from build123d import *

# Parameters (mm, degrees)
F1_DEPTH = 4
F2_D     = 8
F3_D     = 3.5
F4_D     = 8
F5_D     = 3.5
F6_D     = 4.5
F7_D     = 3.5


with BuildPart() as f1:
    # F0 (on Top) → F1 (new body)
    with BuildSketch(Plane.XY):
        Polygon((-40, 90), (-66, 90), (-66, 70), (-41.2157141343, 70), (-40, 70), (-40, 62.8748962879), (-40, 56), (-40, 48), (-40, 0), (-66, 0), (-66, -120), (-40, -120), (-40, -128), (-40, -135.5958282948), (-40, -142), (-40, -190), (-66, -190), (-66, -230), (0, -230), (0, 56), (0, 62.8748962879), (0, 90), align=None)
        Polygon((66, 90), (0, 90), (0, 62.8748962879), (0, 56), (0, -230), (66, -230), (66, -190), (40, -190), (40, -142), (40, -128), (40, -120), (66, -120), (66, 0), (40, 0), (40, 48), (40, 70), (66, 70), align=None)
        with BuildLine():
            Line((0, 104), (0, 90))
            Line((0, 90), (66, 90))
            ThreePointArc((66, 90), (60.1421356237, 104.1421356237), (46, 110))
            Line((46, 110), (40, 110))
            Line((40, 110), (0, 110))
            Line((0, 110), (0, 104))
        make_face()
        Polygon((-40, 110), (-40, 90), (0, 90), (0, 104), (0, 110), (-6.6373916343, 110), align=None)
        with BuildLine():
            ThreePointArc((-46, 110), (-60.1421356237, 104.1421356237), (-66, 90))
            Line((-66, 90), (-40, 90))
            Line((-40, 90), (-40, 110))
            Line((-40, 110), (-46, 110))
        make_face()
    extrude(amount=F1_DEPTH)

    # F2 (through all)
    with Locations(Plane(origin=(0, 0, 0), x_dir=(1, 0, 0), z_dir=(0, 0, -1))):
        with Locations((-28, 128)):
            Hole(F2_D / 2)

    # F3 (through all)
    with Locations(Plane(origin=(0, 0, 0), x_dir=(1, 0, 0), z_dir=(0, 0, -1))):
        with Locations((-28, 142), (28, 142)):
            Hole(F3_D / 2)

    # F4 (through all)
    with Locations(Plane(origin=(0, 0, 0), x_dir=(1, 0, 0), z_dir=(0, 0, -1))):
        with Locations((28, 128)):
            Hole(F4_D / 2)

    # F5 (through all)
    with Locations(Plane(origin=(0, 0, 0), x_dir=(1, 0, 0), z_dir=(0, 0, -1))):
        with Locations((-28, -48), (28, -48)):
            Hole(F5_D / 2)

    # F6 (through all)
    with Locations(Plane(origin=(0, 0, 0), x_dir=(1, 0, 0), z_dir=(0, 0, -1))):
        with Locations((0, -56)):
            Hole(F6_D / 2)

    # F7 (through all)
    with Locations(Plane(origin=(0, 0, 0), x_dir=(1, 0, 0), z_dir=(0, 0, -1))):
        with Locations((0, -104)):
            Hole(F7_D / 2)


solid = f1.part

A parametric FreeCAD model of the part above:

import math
import FreeCAD as App
import Part
import Sketcher
Q = App.Units.Quantity

doc = App.newDocument("Part")
params = doc.addObject("Spreadsheet::Sheet", "Params")
for row, (alias, value) in enumerate([
    ("sketch1_radius", "20 mm"),
    ("sketch1_width", "26 mm"),
    ("sketch1_width2", "132 mm"),
    ("sketch1_height", "20 mm"),
    ("sketch1_height2", "70 mm"),
    ("pad1_length", "4 mm"),
    ("sketch2_diameter", "8 mm"),
    ("hole_diameter", "8 mm"),
    ("sketch3_diameter", "3.5 mm"),
    ("hole2_diameter", "3.5 mm"),
    ("sketch4_diameter", "8 mm"),
    ("hole3_diameter", "8 mm"),
    ("sketch5_diameter", "3.5 mm"),
    ("hole4_diameter", "3.5 mm"),
    ("sketch6_diameter", "4.5 mm"),
    ("hole5_diameter", "4.5 mm"),
    ("sketch7_diameter", "3.5 mm"),
    ("hole6_diameter", "3.5 mm"),
], start=1):
    params.set(f"A{row}", alias)
    params.set(f"B{row}", "=" + value)
    params.setAlias(f"B{row}", alias)

body = doc.addObject("PartDesign::Body", "Body")

# Sketch on XY plane
sketch1 = body.newObject("Sketcher::SketchObject", "Sketch")
sketch1.AttachmentSupport = (doc.getObject("XY_Plane"), [""])
sketch1.MapMode = "FlatFace"
sketch1.addGeometry([
    Part.LineSegment(App.Vector(-66, 90, 0), App.Vector(-66, 70, 0)),  # 0
    Part.LineSegment(App.Vector(-66, 70, 0), App.Vector(-40, 70, 0)),  # 1
    Part.LineSegment(App.Vector(-40, 70, 0), App.Vector(-40, 0, 0)),  # 2
    Part.LineSegment(App.Vector(-40, 0, 0), App.Vector(-66, 0, 0)),  # 3
    Part.LineSegment(App.Vector(-66, 0, 0), App.Vector(-66, -120, 0)),  # 4
    Part.LineSegment(App.Vector(-66, -120, 0), App.Vector(-40, -120, 0)),  # 5
    Part.LineSegment(App.Vector(-40, -120, 0), App.Vector(-40, -190, 0)),  # 6
    Part.LineSegment(App.Vector(-40, -190, 0), App.Vector(-66, -190, 0)),  # 7
    Part.LineSegment(App.Vector(-66, -190, 0), App.Vector(-66, -230, 0)),  # 8
    Part.LineSegment(App.Vector(-66, -230, 0), App.Vector(66, -230, 0)),  # 9
    Part.LineSegment(App.Vector(66, -230, 0), App.Vector(66, -190, 0)),  # 10
    Part.LineSegment(App.Vector(66, -190, 0), App.Vector(40, -190, 0)),  # 11
    Part.LineSegment(App.Vector(40, -190, 0), App.Vector(40, -120, 0)),  # 12
    Part.LineSegment(App.Vector(40, -120, 0), App.Vector(66, -120, 0)),  # 13
    Part.LineSegment(App.Vector(66, -120, 0), App.Vector(66, 0, 0)),  # 14
    Part.LineSegment(App.Vector(66, 0, 0), App.Vector(40, 0, 0)),  # 15
    Part.LineSegment(App.Vector(40, 0, 0), App.Vector(40, 70, 0)),  # 16
    Part.LineSegment(App.Vector(40, 70, 0), App.Vector(66, 70, 0)),  # 17
    Part.LineSegment(App.Vector(66, 70, 0), App.Vector(66, 90, 0)),  # 18
    Part.ArcOfCircle(Part.Circle(App.Vector(46, 90, 0), App.Vector(0, 0, 1), 20), math.radians(0), math.radians(90)),  # 19
    Part.LineSegment(App.Vector(46, 110, 0), App.Vector(-46, 110, 0)),  # 20
    Part.ArcOfCircle(Part.Circle(App.Vector(-46, 90, 0), App.Vector(0, 0, 1), 20), math.radians(90), math.radians(180)),  # 21
], False)
sketch1.addConstraint([
    Sketcher.Constraint("Coincident", 0, 2, 1, 1),
    Sketcher.Constraint("Coincident", 1, 2, 2, 1),
    Sketcher.Constraint("Coincident", 2, 2, 3, 1),
    Sketcher.Constraint("Coincident", 3, 2, 4, 1),
    Sketcher.Constraint("Coincident", 4, 2, 5, 1),
    Sketcher.Constraint("Coincident", 5, 2, 6, 1),
    Sketcher.Constraint("Coincident", 6, 2, 7, 1),
    Sketcher.Constraint("Coincident", 7, 2, 8, 1),
    Sketcher.Constraint("Coincident", 8, 2, 9, 1),
    Sketcher.Constraint("Coincident", 9, 2, 10, 1),
    Sketcher.Constraint("Coincident", 10, 2, 11, 1),
    Sketcher.Constraint("Coincident", 11, 2, 12, 1),
    Sketcher.Constraint("Coincident", 12, 2, 13, 1),
    Sketcher.Constraint("Coincident", 13, 2, 14, 1),
    Sketcher.Constraint("Coincident", 14, 2, 15, 1),
    Sketcher.Constraint("Coincident", 15, 2, 16, 1),
    Sketcher.Constraint("Coincident", 16, 2, 17, 1),
    Sketcher.Constraint("Coincident", 17, 2, 18, 1),
    Sketcher.Constraint("Tangent", 18, 2, 19, 1),
    Sketcher.Constraint("Tangent", 19, 2, 20, 1),
    Sketcher.Constraint("Tangent", 20, 2, 21, 1),
    Sketcher.Constraint("Tangent", 21, 2, 0, 1),
    Sketcher.Constraint("Vertical", 0),
    Sketcher.Constraint("Horizontal", 1),
    Sketcher.Constraint("Vertical", 2),
    Sketcher.Constraint("Horizontal", 3),
    Sketcher.Constraint("Vertical", 4),
    Sketcher.Constraint("Horizontal", 5),
    Sketcher.Constraint("Vertical", 6),
    Sketcher.Constraint("Horizontal", 7),
    Sketcher.Constraint("Vertical", 8),
    Sketcher.Constraint("Horizontal", 9),
    Sketcher.Constraint("Vertical", 10),
    Sketcher.Constraint("Horizontal", 11),
    Sketcher.Constraint("Vertical", 12),
    Sketcher.Constraint("Horizontal", 13),
    Sketcher.Constraint("Vertical", 14),
    Sketcher.Constraint("Horizontal", 15),
    Sketcher.Constraint("Vertical", 16),
    Sketcher.Constraint("Horizontal", 17),
    Sketcher.Constraint("Vertical", 18),
    Sketcher.Constraint("Horizontal", 20),
    Sketcher.Constraint("Equal", 19, 21),
    Sketcher.Constraint("Symmetric", 3, 2, 14, 2, -1, 1),
    Sketcher.Constraint("Symmetric", 7, 2, 10, 2, -2),
    Sketcher.Constraint("Symmetric", 5, 2, 12, 2, -2),
    Sketcher.Constraint("Symmetric", 2, 2, 15, 2, -2),
    Sketcher.Constraint("Symmetric", 0, 2, 17, 2, -2),
    Sketcher.Constraint("Vertical", 0, 2, 3, 2),
    Sketcher.Constraint("Vertical", 2, 2, 5, 2),
    Sketcher.Constraint("Vertical", 4, 2, 7, 2),
    Sketcher.Constraint("Equal", 2, 6),
    Sketcher.Constraint("Radius", 19, Q("20 mm")),
    Sketcher.Constraint("DistanceX", 1, 1, 1, 2, Q("26 mm")),
    Sketcher.Constraint("DistanceX", 9, 1, 9, 2, Q("132 mm")),
    Sketcher.Constraint("DistanceY", 0, 2, 0, 1, Q("20 mm")),
    Sketcher.Constraint("DistanceY", 2, 2, 2, 1, Q("70 mm")),
    Sketcher.Constraint("DistanceY", 4, 2, 4, 1, Q("120 mm")),
    Sketcher.Constraint("DistanceY", 8, 2, 8, 1, Q("40 mm")),
])
sketch1.setExpression("Constraints[52]", "Params.sketch1_radius")
sketch1.setExpression("Constraints[53]", "Params.sketch1_width")
sketch1.setExpression("Constraints[54]", "Params.sketch1_width2")
sketch1.setExpression("Constraints[55]", "Params.sketch1_height")
sketch1.setExpression("Constraints[56]", "Params.sketch1_height2")
pad1 = body.newObject("PartDesign::Pad", "Pad")
pad1.Profile = sketch1
pad1.setExpression("Length", "Params.pad1_length")

# Sketch on XY plane
sketch2 = body.newObject("Sketcher::SketchObject", "Sketch001")
sketch2.AttachmentSupport = (doc.getObject("XY_Plane"), [""])
sketch2.MapMode = "FlatFace"
sketch2.addGeometry(Part.Circle(App.Vector(-28, -128, 0), App.Vector(0, 0, 1), 4), False)
sketch2.addConstraint([
    Sketcher.Constraint("Diameter", 0, Q("8 mm")),
    Sketcher.Constraint("DistanceX", 0, 3, -1, 1, Q("28 mm")),
    Sketcher.Constraint("DistanceY", 0, 3, -1, 1, Q("128 mm")),
])
sketch2.setExpression("Constraints[0]", "Params.sketch2_diameter")
doc.recompute()
hole = body.newObject("PartDesign::Hole", "Hole")
hole.Profile = sketch2
hole.ThreadType = "None"
hole.setExpression("Diameter", "Params.hole_diameter")
hole.DepthType = "ThroughAll"
hole.Reversed = True

# Sketch on XY plane
sketch3 = body.newObject("Sketcher::SketchObject", "Sketch002")
sketch3.AttachmentSupport = (doc.getObject("XY_Plane"), [""])
sketch3.MapMode = "FlatFace"
sketch3.addGeometry([
    Part.Circle(App.Vector(-28, -142, 0), App.Vector(0, 0, 1), 1.8),
    Part.Circle(App.Vector(28, -142, 0), App.Vector(0, 0, 1), 1.8),
], False)
sketch3.addConstraint([
    Sketcher.Constraint("Equal", 0, 1),
    Sketcher.Constraint("Symmetric", 0, 3, 1, 3, -2),
    Sketcher.Constraint("Diameter", 0, Q("3.5 mm")),
    Sketcher.Constraint("DistanceX", 0, 3, -1, 1, Q("28 mm")),
    Sketcher.Constraint("DistanceY", 0, 3, -1, 1, Q("142 mm")),
])
sketch3.setExpression("Constraints[2]", "Params.sketch3_diameter")
doc.recompute()
hole2 = body.newObject("PartDesign::Hole", "Hole001")
hole2.Profile = sketch3
hole2.ThreadType = "None"
hole2.setExpression("Diameter", "Params.hole2_diameter")
hole2.DepthType = "ThroughAll"
hole2.Reversed = True

# Sketch on XY plane
sketch4 = body.newObject("Sketcher::SketchObject", "Sketch003")
sketch4.AttachmentSupport = (doc.getObject("XY_Plane"), [""])
sketch4.MapMode = "FlatFace"
sketch4.addGeometry(Part.Circle(App.Vector(28, -128, 0), App.Vector(0, 0, 1), 4), False)
sketch4.addConstraint([
    Sketcher.Constraint("Diameter", 0, Q("8 mm")),
    Sketcher.Constraint("DistanceX", -1, 1, 0, 3, Q("28 mm")),
    Sketcher.Constraint("DistanceY", 0, 3, -1, 1, Q("128 mm")),
])
sketch4.setExpression("Constraints[0]", "Params.sketch4_diameter")
doc.recompute()
hole3 = body.newObject("PartDesign::Hole", "Hole002")
hole3.Profile = sketch4
hole3.ThreadType = "None"
hole3.setExpression("Diameter", "Params.hole3_diameter")
hole3.DepthType = "ThroughAll"
hole3.Reversed = True

# Sketch on XY plane
sketch5 = body.newObject("Sketcher::SketchObject", "Sketch004")
sketch5.AttachmentSupport = (doc.getObject("XY_Plane"), [""])
sketch5.MapMode = "FlatFace"
sketch5.addGeometry([
    Part.Circle(App.Vector(-28, 48, 0), App.Vector(0, 0, 1), 1.8),
    Part.Circle(App.Vector(28, 48, 0), App.Vector(0, 0, 1), 1.8),
], False)
sketch5.addConstraint([
    Sketcher.Constraint("Equal", 0, 1),
    Sketcher.Constraint("Symmetric", 0, 3, 1, 3, -2),
    Sketcher.Constraint("Diameter", 0, Q("3.5 mm")),
    Sketcher.Constraint("DistanceX", 0, 3, -1, 1, Q("28 mm")),
    Sketcher.Constraint("DistanceY", -1, 1, 0, 3, Q("48 mm")),
])
sketch5.setExpression("Constraints[2]", "Params.sketch5_diameter")
doc.recompute()
hole4 = body.newObject("PartDesign::Hole", "Hole003")
hole4.Profile = sketch5
hole4.ThreadType = "None"
hole4.setExpression("Diameter", "Params.hole4_diameter")
hole4.DepthType = "ThroughAll"
hole4.Reversed = True

# Sketch on XY plane
sketch6 = body.newObject("Sketcher::SketchObject", "Sketch005")
sketch6.AttachmentSupport = (doc.getObject("XY_Plane"), [""])
sketch6.MapMode = "FlatFace"
sketch6.addGeometry(Part.Circle(App.Vector(0, 56, 0), App.Vector(0, 0, 1), 2.2), False)
sketch6.addConstraint([
    Sketcher.Constraint("PointOnObject", 0, 3, -2),
    Sketcher.Constraint("Diameter", 0, Q("4.5 mm")),
    Sketcher.Constraint("DistanceY", -1, 1, 0, 3, Q("56 mm")),
])
sketch6.setExpression("Constraints[1]", "Params.sketch6_diameter")
doc.recompute()
hole5 = body.newObject("PartDesign::Hole", "Hole004")
hole5.Profile = sketch6
hole5.ThreadType = "None"
hole5.setExpression("Diameter", "Params.hole5_diameter")
hole5.DepthType = "ThroughAll"
hole5.Reversed = True

# Sketch on XY plane
sketch7 = body.newObject("Sketcher::SketchObject", "Sketch006")
sketch7.AttachmentSupport = (doc.getObject("XY_Plane"), [""])
sketch7.MapMode = "FlatFace"
sketch7.addGeometry(Part.Circle(App.Vector(0, 104, 0), App.Vector(0, 0, 1), 1.8), False)
sketch7.addConstraint([
    Sketcher.Constraint("PointOnObject", 0, 3, -2),
    Sketcher.Constraint("Diameter", 0, Q("3.5 mm")),
    Sketcher.Constraint("DistanceY", -1, 1, 0, 3, Q("104 mm")),
])
sketch7.setExpression("Constraints[1]", "Params.sketch7_diameter")
doc.recompute()
hole6 = body.newObject("PartDesign::Hole", "Hole005")
hole6.Profile = sketch7
hole6.ThreadType = "None"
hole6.setExpression("Diameter", "Params.hole6_diameter")
hole6.DepthType = "ThroughAll"
hole6.Reversed = True

doc.recompute()
